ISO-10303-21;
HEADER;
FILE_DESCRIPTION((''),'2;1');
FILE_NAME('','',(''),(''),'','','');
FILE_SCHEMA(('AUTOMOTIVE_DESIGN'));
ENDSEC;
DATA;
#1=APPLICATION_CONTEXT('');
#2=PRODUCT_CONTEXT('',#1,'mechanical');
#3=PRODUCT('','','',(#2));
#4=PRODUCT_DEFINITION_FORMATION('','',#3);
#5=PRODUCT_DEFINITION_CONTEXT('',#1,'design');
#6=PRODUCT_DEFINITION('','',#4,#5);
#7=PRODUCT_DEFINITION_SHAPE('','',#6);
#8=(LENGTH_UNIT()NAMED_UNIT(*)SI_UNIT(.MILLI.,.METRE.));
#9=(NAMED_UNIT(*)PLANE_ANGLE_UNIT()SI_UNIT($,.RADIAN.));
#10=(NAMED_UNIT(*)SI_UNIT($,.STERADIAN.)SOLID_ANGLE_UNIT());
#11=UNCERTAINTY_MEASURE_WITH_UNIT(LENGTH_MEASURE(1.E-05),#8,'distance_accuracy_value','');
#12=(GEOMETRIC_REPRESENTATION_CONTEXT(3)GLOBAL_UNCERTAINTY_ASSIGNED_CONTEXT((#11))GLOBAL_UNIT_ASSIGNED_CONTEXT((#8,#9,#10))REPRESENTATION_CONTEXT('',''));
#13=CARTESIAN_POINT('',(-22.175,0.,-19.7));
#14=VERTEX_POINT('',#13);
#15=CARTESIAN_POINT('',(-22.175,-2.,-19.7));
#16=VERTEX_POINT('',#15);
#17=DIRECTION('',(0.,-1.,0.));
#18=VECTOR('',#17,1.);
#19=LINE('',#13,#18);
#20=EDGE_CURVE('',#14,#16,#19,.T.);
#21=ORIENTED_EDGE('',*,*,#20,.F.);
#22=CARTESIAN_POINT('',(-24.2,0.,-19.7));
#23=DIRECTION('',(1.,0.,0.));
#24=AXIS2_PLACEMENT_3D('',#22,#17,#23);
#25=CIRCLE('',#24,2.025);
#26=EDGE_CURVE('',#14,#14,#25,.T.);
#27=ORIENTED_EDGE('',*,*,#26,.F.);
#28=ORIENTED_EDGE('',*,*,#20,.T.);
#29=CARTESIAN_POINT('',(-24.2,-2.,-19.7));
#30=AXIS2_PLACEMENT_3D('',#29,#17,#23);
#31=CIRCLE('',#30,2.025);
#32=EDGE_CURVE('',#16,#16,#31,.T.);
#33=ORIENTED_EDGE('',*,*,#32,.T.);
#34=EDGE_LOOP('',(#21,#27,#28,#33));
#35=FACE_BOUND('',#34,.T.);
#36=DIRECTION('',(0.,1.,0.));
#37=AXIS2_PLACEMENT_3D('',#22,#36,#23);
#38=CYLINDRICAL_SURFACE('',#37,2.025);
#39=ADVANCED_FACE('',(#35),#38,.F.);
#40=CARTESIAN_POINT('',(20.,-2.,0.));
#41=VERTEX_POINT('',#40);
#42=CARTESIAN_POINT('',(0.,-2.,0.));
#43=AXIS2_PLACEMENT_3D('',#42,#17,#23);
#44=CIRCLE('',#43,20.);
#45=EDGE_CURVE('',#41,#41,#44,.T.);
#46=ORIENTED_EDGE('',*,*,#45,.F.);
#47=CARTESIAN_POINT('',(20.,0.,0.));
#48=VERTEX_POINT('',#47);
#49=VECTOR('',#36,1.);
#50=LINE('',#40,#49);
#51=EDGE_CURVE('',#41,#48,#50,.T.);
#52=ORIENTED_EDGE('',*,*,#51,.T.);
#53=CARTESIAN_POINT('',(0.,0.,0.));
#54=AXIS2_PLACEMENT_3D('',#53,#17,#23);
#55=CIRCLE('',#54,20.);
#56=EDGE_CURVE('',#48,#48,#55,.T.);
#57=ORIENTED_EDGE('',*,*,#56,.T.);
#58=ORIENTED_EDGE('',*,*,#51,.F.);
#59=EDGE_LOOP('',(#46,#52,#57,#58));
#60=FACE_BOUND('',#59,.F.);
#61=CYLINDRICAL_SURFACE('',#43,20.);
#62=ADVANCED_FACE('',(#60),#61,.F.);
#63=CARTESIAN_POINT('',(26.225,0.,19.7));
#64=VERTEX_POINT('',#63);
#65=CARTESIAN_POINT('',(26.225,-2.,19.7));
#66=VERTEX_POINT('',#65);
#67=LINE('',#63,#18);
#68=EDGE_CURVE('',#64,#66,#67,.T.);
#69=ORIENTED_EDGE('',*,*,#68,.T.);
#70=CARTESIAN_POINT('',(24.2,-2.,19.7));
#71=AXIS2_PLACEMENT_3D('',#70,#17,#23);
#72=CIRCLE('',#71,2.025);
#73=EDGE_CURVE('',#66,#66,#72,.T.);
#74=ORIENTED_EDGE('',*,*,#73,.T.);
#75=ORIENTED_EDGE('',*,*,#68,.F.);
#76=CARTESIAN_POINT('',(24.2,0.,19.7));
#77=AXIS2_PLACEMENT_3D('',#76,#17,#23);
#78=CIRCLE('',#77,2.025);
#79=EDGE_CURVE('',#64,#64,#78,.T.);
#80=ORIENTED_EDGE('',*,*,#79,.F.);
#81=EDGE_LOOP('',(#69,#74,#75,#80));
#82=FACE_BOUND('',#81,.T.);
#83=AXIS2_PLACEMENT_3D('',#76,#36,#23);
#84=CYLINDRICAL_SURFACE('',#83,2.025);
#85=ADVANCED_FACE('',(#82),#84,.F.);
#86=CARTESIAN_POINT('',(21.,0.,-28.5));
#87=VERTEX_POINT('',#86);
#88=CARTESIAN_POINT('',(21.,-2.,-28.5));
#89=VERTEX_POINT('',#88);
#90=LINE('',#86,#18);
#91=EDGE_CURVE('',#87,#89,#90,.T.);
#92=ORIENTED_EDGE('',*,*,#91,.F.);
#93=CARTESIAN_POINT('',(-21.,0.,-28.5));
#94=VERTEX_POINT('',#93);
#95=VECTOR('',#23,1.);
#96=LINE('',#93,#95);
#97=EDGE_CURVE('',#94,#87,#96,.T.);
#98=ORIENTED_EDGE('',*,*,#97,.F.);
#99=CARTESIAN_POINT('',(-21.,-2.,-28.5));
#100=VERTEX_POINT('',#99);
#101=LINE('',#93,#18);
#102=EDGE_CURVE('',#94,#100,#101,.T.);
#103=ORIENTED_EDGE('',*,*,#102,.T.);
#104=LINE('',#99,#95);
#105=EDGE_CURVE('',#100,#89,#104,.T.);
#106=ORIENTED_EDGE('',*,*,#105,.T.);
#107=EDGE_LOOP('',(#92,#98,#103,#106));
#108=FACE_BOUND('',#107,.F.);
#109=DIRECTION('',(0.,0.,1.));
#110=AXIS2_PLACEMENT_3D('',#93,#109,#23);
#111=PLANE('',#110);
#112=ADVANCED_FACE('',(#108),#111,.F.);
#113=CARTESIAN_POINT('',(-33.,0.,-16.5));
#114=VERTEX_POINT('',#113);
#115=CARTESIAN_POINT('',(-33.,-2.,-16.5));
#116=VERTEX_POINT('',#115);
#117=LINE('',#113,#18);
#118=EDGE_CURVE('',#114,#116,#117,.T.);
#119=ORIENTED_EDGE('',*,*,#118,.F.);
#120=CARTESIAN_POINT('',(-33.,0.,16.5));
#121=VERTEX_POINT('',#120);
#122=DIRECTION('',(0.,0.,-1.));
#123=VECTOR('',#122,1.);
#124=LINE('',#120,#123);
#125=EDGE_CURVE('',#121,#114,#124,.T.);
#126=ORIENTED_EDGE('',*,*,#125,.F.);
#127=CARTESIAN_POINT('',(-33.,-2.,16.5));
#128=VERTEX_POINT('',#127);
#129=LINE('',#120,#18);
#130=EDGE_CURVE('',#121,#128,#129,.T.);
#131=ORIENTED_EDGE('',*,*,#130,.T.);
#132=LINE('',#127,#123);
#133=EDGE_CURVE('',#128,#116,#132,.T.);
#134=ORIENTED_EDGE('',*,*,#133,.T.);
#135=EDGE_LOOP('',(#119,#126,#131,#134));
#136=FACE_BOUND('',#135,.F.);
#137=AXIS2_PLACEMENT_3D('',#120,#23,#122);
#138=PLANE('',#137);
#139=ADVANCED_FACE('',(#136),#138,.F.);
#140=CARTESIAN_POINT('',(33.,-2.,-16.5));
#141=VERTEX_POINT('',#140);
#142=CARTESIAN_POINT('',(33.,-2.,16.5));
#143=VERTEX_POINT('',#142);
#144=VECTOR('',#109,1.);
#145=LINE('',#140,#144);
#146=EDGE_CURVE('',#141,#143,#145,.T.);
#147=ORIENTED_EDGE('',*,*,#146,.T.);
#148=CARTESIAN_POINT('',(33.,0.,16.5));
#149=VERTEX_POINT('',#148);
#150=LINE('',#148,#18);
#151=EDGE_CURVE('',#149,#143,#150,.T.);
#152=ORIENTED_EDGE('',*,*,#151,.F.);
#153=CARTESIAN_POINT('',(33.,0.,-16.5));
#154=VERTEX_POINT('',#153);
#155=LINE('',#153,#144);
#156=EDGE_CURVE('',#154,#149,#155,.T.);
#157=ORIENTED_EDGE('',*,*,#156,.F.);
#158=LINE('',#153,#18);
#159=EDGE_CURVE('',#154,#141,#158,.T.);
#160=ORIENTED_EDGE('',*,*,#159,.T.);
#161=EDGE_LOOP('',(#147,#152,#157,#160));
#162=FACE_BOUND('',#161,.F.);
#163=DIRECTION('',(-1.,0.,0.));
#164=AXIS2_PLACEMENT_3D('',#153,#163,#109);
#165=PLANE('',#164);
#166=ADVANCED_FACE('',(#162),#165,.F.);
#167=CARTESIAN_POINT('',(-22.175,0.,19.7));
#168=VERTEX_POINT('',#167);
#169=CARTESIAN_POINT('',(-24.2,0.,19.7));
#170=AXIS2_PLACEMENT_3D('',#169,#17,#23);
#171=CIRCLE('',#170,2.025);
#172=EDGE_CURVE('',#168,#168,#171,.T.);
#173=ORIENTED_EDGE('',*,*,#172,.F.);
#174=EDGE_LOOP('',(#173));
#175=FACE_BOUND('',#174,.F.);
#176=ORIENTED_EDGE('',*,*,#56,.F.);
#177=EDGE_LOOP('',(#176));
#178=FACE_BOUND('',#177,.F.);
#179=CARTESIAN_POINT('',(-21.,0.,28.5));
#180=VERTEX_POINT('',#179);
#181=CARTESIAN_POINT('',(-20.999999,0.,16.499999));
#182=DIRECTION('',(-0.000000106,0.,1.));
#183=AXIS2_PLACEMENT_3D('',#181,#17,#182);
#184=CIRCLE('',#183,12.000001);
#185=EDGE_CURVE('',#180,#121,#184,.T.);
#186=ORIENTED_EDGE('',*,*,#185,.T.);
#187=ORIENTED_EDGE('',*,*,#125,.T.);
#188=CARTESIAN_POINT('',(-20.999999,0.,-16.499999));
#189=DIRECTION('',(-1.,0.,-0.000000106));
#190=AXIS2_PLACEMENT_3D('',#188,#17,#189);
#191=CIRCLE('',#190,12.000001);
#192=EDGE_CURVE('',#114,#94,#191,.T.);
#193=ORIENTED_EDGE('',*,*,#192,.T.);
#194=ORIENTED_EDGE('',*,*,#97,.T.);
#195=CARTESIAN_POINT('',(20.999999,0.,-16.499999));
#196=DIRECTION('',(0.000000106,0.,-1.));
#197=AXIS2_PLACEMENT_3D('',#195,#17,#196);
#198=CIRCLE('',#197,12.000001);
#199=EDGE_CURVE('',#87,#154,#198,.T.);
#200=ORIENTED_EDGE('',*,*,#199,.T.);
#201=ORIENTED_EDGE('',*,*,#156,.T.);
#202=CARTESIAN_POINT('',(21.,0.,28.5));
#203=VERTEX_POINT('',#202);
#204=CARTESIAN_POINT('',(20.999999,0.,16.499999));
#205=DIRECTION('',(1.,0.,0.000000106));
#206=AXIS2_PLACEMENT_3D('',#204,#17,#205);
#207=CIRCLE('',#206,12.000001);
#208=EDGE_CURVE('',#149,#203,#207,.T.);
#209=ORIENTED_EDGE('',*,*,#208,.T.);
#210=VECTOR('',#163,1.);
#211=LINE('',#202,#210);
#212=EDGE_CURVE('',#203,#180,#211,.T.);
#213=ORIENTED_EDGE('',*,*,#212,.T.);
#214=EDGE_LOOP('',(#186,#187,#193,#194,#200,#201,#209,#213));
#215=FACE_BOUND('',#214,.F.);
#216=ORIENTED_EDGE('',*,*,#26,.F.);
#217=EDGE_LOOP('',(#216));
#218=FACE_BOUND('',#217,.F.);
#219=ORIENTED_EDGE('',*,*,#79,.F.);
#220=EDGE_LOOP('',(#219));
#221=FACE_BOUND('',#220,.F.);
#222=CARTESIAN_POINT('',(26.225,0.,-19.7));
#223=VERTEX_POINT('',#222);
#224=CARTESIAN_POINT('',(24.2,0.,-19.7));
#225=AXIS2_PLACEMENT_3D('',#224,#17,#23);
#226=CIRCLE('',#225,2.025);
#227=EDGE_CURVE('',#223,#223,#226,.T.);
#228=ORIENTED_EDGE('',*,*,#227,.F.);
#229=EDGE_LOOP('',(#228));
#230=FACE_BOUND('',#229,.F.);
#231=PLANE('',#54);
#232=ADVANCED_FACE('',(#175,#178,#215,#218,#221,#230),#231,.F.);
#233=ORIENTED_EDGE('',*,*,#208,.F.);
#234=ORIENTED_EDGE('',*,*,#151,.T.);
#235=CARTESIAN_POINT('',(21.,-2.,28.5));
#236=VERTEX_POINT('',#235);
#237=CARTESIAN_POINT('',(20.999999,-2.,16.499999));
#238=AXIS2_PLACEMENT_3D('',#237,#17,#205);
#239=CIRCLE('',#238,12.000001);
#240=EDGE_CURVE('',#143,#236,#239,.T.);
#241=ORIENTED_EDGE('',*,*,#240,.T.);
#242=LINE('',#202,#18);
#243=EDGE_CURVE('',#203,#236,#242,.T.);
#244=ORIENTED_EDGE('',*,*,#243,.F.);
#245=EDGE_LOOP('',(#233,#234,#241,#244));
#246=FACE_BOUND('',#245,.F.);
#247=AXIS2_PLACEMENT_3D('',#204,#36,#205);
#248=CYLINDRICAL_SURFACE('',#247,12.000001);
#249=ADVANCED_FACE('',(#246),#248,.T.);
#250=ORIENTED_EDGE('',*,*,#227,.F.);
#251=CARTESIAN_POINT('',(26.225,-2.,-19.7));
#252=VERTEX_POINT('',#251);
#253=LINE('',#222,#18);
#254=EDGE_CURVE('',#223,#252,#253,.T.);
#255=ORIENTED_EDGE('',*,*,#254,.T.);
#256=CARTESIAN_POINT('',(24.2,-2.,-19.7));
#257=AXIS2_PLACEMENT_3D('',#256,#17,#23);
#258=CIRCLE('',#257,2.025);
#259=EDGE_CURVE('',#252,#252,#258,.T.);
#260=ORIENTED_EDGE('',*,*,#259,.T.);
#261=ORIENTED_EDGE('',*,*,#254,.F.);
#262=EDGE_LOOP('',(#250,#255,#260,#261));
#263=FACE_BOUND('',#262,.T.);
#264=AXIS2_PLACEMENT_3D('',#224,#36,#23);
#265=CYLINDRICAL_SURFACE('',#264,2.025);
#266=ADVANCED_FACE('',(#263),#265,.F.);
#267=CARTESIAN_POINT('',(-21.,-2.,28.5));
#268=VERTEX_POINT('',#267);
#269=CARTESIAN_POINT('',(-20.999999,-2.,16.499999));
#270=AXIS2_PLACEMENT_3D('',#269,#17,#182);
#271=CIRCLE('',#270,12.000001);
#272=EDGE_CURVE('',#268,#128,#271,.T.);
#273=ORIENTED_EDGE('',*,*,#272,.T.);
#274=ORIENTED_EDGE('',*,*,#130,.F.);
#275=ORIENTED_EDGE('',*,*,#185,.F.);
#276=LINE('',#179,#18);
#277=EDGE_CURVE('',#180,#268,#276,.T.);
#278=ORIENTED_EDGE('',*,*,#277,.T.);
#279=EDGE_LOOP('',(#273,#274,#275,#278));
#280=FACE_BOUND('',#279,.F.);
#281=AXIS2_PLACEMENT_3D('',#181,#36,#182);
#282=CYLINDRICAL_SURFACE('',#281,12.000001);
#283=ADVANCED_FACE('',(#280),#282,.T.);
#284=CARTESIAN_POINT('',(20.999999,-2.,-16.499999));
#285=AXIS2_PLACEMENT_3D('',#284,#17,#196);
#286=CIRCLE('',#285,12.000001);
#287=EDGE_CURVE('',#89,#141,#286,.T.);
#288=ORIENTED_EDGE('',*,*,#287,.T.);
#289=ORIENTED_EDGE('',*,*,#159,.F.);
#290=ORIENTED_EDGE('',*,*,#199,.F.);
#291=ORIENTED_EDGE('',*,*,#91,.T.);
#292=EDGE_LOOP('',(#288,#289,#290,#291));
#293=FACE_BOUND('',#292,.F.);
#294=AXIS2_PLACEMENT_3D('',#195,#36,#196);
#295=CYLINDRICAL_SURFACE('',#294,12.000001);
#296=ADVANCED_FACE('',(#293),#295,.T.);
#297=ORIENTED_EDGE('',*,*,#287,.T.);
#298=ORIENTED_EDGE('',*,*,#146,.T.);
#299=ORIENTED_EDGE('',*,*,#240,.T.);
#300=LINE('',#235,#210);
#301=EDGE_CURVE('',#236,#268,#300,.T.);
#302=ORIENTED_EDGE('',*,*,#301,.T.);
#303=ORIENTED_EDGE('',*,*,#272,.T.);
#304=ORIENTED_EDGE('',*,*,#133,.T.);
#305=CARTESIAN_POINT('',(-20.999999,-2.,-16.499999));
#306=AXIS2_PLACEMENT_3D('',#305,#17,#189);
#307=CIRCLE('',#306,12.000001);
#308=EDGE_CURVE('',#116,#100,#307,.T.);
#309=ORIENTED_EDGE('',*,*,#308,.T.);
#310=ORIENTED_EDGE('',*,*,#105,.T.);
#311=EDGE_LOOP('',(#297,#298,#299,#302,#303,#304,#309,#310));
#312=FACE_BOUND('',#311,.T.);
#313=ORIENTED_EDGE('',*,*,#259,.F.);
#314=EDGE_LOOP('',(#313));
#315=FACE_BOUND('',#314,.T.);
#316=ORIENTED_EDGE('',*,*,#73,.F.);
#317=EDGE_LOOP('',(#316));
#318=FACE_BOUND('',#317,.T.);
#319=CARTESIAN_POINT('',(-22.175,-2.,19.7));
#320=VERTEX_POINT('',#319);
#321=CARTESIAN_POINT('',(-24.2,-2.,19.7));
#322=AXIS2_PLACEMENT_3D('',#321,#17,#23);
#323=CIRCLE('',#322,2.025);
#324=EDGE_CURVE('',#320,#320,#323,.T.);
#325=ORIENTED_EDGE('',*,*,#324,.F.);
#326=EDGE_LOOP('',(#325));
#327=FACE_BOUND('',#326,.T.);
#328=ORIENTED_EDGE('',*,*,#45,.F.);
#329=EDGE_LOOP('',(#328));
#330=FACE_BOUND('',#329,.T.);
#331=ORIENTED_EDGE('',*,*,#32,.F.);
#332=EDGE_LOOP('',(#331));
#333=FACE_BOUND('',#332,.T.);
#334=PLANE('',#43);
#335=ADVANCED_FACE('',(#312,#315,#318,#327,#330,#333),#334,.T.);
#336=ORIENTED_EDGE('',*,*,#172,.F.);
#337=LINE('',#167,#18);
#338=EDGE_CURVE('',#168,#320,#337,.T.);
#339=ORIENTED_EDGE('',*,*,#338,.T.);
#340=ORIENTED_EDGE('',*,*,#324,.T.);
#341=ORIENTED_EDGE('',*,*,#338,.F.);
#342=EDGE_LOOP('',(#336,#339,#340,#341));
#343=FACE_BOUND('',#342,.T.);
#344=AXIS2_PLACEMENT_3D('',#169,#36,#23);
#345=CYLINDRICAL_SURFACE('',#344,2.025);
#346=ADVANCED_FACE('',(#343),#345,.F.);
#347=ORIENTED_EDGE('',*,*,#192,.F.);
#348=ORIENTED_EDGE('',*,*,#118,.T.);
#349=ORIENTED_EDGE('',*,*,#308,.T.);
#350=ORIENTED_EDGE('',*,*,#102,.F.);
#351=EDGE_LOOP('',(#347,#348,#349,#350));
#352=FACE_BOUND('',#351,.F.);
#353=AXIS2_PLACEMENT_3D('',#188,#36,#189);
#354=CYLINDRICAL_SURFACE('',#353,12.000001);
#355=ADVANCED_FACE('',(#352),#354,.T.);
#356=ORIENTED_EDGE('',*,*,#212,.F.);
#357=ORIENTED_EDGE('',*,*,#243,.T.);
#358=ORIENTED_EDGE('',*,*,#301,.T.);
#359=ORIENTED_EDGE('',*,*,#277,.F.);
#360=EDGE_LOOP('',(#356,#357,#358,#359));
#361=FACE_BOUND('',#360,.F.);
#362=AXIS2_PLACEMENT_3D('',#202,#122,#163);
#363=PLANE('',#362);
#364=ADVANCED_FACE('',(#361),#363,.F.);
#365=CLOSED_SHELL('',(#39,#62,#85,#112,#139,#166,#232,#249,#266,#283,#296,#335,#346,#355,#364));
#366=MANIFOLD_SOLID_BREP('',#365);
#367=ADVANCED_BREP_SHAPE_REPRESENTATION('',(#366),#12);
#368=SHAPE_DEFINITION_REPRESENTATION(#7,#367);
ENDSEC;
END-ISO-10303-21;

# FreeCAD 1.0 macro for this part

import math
import FreeCAD as App
import Part
import Sketcher

doc = App.newDocument("Part")
body = doc.addObject("PartDesign::Body", "Body")

# Sketch on XZ plane
sketch1 = body.newObject("Sketcher::SketchObject", "Sketch")
sketch1.AttachmentSupport = (doc.getObject("XZ_Plane"), [""])
sketch1.MapMode = "FlatFace"
sketch1.addGeometry(Part.LineSegment(App.Vector(-21, -28.5, 0), App.Vector(21, -28.5, 0)), False)
sketch1.addGeometry(Part.ArcOfCircle(Part.Circle(App.Vector(21, -16.5, 0), App.Vector(0, 0, 1), 12), math.radians(-90), math.radians(0)), False)
sketch1.addGeometry(Part.LineSegment(App.Vector(33, -16.5, 0), App.Vector(33, 16.5, 0)), False)
sketch1.addGeometry(Part.ArcOfCircle(Part.Circle(App.Vector(21, 16.5, 0), App.Vector(0, 0, 1), 12), math.radians(0), math.radians(90)), False)
sketch1.addGeometry(Part.LineSegment(App.Vector(21, 28.5, 0), App.Vector(-21, 28.5, 0)), False)
sketch1.addGeometry(Part.ArcOfCircle(Part.Circle(App.Vector(-21, 16.5, 0), App.Vector(0, 0, 1), 12), math.radians(90), math.radians(180)), False)
sketch1.addGeometry(Part.LineSegment(App.Vector(-33, 16.5, 0), App.Vector(-33, -16.5, 0)), False)
sketch1.addGeometry(Part.ArcOfCircle(Part.Circle(App.Vector(-21, -16.5, 0), App.Vector(0, 0, 1), 12), math.radians(-180), math.radians(-90)), False)
sketch1.addGeometry(Part.Circle(App.Vector(-24.2, -19.7, 0), App.Vector(0, 0, 1), 2), False)
sketch1.addGeometry(Part.Circle(App.Vector(24.2, -19.7, 0), App.Vector(0, 0, 1), 2), False)
sketch1.addGeometry(Part.Circle(App.Vector(-24.2, 19.7, 0), App.Vector(0, 0, 1), 2), False)
sketch1.addGeometry(Part.Circle(App.Vector(24.2, 19.7, 0), App.Vector(0, 0, 1), 2), False)
sketch1.addConstraint(Sketcher.Constraint("Tangent", 0, 2, 1, 1))
sketch1.addConstraint(Sketcher.Constraint("Tangent", 1, 2, 2, 1))
sketch1.addConstraint(Sketcher.Constraint("Tangent", 2, 2, 3, 1))
sketch1.addConstraint(Sketcher.Constraint("Tangent", 3, 2, 4, 1))
sketch1.addConstraint(Sketcher.Constraint("Tangent", 4, 2, 5, 1))
sketch1.addConstraint(Sketcher.Constraint("Tangent", 5, 2, 6, 1))
sketch1.addConstraint(Sketcher.Constraint("Tangent", 6, 2, 7, 1))
sketch1.addConstraint(Sketcher.Constraint("Tangent", 7, 2, 0, 1))
sketch1.addConstraint(Sketcher.Constraint("Horizontal", 0))
sketch1.addConstraint(Sketcher.Constraint("Vertical", 2))
sketch1.addConstraint(Sketcher.Constraint("Horizontal", 4))
sketch1.addConstraint(Sketcher.Constraint("Vertical", 6))
sketch1.addConstraint(Sketcher.Constraint("Equal", 1, 3))
sketch1.addConstraint(Sketcher.Constraint("Equal", 3, 5))
sketch1.addConstraint(Sketcher.Constraint("Equal", 5, 7))
sketch1.addConstraint(Sketcher.Constraint("Equal", 8, 9))
sketch1.addConstraint(Sketcher.Constraint("Equal", 9, 10))
sketch1.addConstraint(Sketcher.Constraint("Equal", 10, 11))
sketch1.addConstraint(Sketcher.Constraint("Symmetric", 1, 3, 5, 3, -1, 1))
sketch1.addConstraint(Sketcher.Constraint("Symmetric", 9, 3, 10, 3, -1, 1))
sketch1.addConstraint(Sketcher.Constraint("Symmetric", 8, 3, 11, 3, -1, 1))
sketch1.addConstraint(Sketcher.Constraint("Symmetric", 8, 3, 9, 3, -2))
sketch1.addConstraint(Sketcher.Constraint("Radius", 1, 12.000001))
sketch1.addConstraint(Sketcher.Constraint("Diameter", 8, 4.05))
sketch1.addConstraint(Sketcher.Constraint("DistanceX", 0, 1, 0, 2, 42.0))
sketch1.addConstraint(Sketcher.Constraint("DistanceY", 2, 1, 2, 2, 33.0))
sketch1.addConstraint(Sketcher.Constraint("DistanceX", 8, 3, -1, 1, 24.2))
sketch1.addConstraint(Sketcher.Constraint("DistanceY", 8, 3, -1, 1, 19.7))
pad1 = body.newObject("PartDesign::Pad", "Pad")
pad1.Profile = sketch1
pad1.Length = 2

# Sketch on XZ plane
sketch2 = body.newObject("Sketcher::SketchObject", "Sketch001")
sketch2.AttachmentSupport = (doc.getObject("XZ_Plane"), [""])
sketch2.MapMode = "FlatFace"
sketch2.AttachmentOffset = App.Placement(App.Vector(0, 0, 2), App.Rotation())
sketch2.addGeometry(Part.Circle(App.Vector(0, 0, 0), App.Vector(0, 0, 1), 20), False)
sketch2.addConstraint(Sketcher.Constraint("Coincident", 0, 3, -1, 1))
sketch2.addConstraint(Sketcher.Constraint("Diameter", 0, 40.0))
pocket1 = body.newObject("PartDesign::Pocket", "Pocket")
pocket1.Profile = sketch2
pocket1.Length = 25

doc.recompute()
